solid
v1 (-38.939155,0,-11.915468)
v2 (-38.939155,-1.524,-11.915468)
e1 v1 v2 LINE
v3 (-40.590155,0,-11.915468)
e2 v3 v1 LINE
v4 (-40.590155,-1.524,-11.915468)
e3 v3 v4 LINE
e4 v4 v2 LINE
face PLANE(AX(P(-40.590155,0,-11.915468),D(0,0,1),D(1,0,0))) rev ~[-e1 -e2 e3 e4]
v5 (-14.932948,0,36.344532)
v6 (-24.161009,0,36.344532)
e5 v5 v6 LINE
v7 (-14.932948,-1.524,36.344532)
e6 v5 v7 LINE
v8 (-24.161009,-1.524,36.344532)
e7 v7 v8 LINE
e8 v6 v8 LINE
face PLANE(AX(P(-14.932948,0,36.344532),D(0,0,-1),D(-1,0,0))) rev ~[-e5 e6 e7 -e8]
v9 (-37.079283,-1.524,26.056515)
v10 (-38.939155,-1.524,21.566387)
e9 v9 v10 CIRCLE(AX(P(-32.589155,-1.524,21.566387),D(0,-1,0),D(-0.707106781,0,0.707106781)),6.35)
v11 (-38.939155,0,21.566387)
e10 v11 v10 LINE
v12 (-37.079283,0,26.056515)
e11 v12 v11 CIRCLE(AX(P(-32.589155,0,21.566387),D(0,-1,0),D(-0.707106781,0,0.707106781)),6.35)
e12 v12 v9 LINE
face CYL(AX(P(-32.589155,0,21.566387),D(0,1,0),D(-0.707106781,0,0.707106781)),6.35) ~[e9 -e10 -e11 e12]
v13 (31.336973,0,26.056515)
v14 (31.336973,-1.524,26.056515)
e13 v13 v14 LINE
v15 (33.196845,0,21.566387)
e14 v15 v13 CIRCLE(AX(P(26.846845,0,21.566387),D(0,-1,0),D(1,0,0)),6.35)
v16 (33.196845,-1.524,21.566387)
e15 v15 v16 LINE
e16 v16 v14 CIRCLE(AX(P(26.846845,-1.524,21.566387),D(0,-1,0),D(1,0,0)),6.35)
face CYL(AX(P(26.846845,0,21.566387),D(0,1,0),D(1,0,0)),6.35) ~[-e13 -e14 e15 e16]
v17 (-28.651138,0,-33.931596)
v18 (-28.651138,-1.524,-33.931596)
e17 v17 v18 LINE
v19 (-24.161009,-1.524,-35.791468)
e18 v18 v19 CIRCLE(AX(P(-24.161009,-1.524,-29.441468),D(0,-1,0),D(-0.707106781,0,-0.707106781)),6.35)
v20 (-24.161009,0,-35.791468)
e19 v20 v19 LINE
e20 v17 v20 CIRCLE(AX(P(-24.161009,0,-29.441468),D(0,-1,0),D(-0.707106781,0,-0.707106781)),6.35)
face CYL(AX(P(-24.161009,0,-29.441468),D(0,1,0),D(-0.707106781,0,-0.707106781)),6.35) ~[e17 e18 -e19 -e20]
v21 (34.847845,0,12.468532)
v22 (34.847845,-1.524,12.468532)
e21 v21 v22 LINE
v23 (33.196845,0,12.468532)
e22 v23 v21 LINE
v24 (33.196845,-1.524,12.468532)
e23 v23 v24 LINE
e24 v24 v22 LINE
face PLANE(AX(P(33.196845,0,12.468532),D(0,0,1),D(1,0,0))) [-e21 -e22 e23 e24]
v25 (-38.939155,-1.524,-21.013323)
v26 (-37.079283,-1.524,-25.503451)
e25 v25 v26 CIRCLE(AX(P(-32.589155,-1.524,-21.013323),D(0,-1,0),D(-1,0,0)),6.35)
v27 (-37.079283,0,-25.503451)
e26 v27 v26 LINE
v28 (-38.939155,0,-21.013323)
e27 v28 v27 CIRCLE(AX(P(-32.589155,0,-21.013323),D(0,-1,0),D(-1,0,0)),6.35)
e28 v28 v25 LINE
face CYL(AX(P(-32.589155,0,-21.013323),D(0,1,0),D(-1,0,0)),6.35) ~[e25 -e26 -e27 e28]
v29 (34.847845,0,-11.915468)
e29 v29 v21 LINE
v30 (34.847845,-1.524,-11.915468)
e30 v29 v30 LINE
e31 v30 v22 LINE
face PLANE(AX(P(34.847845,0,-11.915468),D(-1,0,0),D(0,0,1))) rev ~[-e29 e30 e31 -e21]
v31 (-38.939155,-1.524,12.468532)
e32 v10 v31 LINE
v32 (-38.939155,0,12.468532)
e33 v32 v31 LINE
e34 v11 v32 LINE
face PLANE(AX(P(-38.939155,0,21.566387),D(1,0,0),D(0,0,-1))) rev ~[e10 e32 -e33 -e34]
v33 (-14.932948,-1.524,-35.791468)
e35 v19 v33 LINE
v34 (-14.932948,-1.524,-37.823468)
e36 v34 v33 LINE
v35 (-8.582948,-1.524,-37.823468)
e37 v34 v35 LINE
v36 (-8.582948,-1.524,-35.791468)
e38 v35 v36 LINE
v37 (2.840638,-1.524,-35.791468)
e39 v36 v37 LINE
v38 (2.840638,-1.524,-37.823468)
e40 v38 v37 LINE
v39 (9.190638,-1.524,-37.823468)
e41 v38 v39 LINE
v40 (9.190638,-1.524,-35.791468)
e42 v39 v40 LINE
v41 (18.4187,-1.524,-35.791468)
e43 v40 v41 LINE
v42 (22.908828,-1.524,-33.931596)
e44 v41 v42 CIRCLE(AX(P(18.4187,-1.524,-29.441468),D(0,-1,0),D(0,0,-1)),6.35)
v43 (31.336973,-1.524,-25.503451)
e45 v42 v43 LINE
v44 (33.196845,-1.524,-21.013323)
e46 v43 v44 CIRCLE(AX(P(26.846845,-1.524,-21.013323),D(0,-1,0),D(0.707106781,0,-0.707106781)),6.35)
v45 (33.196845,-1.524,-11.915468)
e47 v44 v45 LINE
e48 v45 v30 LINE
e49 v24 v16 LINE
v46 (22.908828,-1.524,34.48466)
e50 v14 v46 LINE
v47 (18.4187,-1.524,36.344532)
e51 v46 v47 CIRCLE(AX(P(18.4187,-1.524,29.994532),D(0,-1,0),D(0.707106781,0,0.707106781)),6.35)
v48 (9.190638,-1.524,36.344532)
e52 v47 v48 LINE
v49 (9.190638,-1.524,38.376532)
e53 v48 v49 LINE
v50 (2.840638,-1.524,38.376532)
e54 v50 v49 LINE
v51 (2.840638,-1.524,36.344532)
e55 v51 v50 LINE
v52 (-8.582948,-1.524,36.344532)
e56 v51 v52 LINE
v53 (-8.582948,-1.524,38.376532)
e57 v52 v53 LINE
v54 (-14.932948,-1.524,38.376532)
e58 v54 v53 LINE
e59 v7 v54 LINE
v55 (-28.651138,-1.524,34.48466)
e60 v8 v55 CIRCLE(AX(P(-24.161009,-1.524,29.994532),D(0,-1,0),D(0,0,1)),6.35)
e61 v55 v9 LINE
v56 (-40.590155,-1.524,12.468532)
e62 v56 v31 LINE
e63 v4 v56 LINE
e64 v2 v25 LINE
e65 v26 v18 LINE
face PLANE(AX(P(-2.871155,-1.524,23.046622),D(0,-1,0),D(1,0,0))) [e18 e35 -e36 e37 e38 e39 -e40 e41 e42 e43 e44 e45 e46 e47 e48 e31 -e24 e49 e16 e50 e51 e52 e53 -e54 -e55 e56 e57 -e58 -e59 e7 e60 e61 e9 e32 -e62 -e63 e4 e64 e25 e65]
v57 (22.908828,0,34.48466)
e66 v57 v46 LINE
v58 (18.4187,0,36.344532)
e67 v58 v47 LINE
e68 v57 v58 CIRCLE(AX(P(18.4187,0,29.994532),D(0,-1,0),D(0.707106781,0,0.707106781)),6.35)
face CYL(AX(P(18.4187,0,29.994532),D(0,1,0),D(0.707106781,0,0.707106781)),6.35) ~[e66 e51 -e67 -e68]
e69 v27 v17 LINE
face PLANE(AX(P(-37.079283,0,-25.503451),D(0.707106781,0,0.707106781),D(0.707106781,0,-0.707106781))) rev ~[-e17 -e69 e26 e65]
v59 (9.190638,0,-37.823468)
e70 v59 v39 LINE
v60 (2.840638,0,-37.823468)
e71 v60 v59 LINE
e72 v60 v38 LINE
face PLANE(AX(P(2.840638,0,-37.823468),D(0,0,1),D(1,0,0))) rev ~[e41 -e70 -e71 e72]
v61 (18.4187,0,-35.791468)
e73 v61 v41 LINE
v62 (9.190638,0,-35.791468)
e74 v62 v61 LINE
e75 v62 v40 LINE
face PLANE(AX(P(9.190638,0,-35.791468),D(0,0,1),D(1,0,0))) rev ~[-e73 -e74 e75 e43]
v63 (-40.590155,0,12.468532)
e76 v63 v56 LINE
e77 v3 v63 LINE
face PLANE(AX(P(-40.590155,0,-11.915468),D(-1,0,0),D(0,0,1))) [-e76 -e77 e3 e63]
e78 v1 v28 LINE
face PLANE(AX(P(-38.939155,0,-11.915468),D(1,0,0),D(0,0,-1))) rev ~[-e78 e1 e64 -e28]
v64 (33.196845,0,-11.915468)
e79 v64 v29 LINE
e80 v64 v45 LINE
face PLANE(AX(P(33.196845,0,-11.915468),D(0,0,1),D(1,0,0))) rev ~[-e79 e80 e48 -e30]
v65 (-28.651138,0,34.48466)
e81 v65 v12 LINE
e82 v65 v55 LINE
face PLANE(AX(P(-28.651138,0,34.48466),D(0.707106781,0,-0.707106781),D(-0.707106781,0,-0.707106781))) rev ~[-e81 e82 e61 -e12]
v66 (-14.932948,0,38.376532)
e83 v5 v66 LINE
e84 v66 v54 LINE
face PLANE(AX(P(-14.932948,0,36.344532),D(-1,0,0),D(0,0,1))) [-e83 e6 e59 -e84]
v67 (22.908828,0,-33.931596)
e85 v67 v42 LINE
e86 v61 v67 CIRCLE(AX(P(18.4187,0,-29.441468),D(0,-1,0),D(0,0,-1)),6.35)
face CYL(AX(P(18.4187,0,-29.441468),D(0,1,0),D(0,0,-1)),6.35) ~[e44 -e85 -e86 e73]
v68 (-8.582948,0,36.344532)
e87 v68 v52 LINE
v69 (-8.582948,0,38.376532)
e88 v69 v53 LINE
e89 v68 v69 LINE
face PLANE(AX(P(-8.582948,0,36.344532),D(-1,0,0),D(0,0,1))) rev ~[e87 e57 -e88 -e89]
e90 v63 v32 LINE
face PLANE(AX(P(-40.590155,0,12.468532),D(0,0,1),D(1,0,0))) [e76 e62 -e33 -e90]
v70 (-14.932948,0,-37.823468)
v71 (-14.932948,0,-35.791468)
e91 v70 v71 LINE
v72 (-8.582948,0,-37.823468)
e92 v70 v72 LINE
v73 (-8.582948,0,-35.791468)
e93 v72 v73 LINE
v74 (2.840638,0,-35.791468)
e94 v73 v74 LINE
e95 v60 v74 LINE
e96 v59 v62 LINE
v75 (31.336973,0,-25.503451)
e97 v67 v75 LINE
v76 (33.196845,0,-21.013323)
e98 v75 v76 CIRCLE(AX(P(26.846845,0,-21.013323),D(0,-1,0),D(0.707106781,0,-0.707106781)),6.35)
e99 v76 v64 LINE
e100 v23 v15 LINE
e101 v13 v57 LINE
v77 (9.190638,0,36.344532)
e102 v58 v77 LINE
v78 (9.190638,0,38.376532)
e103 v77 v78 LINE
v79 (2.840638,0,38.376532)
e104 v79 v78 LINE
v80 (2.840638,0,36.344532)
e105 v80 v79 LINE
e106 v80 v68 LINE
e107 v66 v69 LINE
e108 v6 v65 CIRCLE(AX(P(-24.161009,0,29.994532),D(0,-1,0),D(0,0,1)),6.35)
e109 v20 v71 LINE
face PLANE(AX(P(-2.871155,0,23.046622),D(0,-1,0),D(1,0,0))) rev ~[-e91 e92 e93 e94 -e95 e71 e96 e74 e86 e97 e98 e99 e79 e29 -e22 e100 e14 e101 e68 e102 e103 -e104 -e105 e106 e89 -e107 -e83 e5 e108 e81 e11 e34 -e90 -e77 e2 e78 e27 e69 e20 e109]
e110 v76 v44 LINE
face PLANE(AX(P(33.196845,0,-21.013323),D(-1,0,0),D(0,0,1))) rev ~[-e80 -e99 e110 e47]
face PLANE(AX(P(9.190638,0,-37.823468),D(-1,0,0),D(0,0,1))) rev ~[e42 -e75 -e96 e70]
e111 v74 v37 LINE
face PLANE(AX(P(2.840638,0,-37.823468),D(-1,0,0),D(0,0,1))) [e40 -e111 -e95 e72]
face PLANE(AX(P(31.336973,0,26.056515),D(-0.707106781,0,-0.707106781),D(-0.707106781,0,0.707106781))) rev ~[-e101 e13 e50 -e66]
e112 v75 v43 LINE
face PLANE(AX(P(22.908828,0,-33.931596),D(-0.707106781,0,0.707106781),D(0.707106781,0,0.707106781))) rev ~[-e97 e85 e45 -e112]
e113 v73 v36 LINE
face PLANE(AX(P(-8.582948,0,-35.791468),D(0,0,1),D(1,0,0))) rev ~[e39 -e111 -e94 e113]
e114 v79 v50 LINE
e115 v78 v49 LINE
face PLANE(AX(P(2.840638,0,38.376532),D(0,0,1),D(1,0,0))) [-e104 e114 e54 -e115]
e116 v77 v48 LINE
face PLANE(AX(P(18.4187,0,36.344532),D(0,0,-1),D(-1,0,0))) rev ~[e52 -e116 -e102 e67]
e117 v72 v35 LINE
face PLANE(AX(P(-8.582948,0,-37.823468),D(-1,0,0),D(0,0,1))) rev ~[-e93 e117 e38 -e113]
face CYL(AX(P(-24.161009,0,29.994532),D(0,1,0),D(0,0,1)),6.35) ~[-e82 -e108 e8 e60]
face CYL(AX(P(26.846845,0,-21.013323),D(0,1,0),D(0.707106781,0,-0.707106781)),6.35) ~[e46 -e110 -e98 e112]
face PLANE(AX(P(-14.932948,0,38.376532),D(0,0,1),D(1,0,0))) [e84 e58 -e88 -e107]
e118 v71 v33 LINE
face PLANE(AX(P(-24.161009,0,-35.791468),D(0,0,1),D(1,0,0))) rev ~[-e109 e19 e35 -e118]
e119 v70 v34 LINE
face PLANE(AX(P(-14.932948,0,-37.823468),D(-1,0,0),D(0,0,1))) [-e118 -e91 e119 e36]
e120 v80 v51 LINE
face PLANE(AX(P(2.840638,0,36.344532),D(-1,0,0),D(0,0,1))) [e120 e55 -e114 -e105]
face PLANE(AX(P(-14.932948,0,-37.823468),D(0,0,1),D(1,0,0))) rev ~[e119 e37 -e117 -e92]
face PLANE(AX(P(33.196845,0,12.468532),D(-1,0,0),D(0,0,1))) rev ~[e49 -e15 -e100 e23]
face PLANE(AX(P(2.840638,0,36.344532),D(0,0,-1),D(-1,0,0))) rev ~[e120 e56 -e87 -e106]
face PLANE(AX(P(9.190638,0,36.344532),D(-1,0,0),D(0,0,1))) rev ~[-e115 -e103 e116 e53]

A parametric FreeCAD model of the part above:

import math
import FreeCAD as App
import Part
import Sketcher

V = App.Vector
Q = App.Units.Quantity

doc = App.newDocument("Part")
body = doc.addObject("PartDesign::Body", "Body")

# Sketch on XZ plane
sketch1 = body.newObject("Sketcher::SketchObject", "Sketch")
sketch1.AttachmentSupport = (doc.getObject("XZ_Plane"), [""])
sketch1.MapMode = "FlatFace"
sketch1.addGeometry([
    Part.LineSegment(V(18.4, 36.3, 0), V(9.2, 36.3, 0)),  # 0
    Part.LineSegment(V(9.2, 36.3, 0), V(9.2, 38.4, 0)),  # 1
    Part.LineSegment(V(9.2, 38.4, 0), V(2.8, 38.4, 0)),  # 2
    Part.LineSegment(V(2.8, 38.4, 0), V(2.8, 36.3, 0)),  # 3
    Part.LineSegment(V(2.8, 36.3, 0), V(-8.6, 36.3, 0)),  # 4
    Part.LineSegment(V(-8.6, 36.3, 0), V(-8.6, 38.4, 0)),  # 5
    Part.LineSegment(V(-8.6, 38.4, 0), V(-14.9, 38.4, 0)),  # 6
    Part.LineSegment(V(-14.9, 38.4, 0), V(-14.9, 36.3, 0)),  # 7
    Part.LineSegment(V(-14.9, 36.3, 0), V(-24.2, 36.3, 0)),  # 8
    Part.ArcOfCircle(Part.Circle(V(-24.2, 30, 0), V(0, 0, 1), 6.3), math.radians(90), math.radians(135)),  # 9
    Part.LineSegment(V(-28.7, 34.5, 0), V(-37.1, 26.1, 0)),  # 10
    Part.ArcOfCircle(Part.Circle(V(-32.6, 21.6, 0), V(0, 0, 1), 6.3), math.radians(135), math.radians(180)),  # 11
    Part.LineSegment(V(-38.9, 21.6, 0), V(-38.9, 12.5, 0)),  # 12
    Part.LineSegment(V(-38.9, 12.5, 0), V(-40.6, 12.5, 0)),  # 13
    Part.LineSegment(V(-40.6, 12.5, 0), V(-40.6, -11.9, 0)),  # 14
    Part.LineSegment(V(-40.6, -11.9, 0), V(-38.9, -11.9, 0)),  # 15
    Part.LineSegment(V(-38.9, -11.9, 0), V(-38.9, -21, 0)),  # 16
    Part.ArcOfCircle(Part.Circle(V(-32.6, -21, 0), V(0, 0, 1), 6.3), math.radians(180), math.radians(225)),  # 17
    Part.LineSegment(V(-37.1, -25.5, 0), V(-28.7, -33.9, 0)),  # 18
    Part.ArcOfCircle(Part.Circle(V(-24.2, -29.4, 0), V(0, 0, 1), 6.3), math.radians(-135), math.radians(-90)),  # 19
    Part.LineSegment(V(-24.2, -35.8, 0), V(-14.9, -35.8, 0)),  # 20
    Part.LineSegment(V(-14.9, -35.8, 0), V(-14.9, -37.8, 0)),  # 21
    Part.LineSegment(V(-14.9, -37.8, 0), V(-8.6, -37.8, 0)),  # 22
    Part.LineSegment(V(-8.6, -37.8, 0), V(-8.6, -35.8, 0)),  # 23
    Part.LineSegment(V(-8.6, -35.8, 0), V(2.8, -35.8, 0)),  # 24
    Part.LineSegment(V(2.8, -35.8, 0), V(2.8, -37.8, 0)),  # 25
    Part.LineSegment(V(2.8, -37.8, 0), V(9.2, -37.8, 0)),  # 26
    Part.LineSegment(V(9.2, -37.8, 0), V(9.2, -35.8, 0)),  # 27
    Part.LineSegment(V(9.2, -35.8, 0), V(18.4, -35.8, 0)),  # 28
    Part.ArcOfCircle(Part.Circle(V(18.4, -29.4, 0), V(0, 0, 1), 6.3), math.radians(-90), math.radians(-45)),  # 29
    Part.LineSegment(V(22.9, -33.9, 0), V(31.3, -25.5, 0)),  # 30
    Part.ArcOfCircle(Part.Circle(V(26.8, -21, 0), V(0, 0, 1), 6.3), math.radians(-45), math.radians(0)),  # 31
    Part.LineSegment(V(33.2, -21, 0), V(33.2, -11.9, 0)),  # 32
    Part.LineSegment(V(33.2, -11.9, 0), V(34.8, -11.9, 0)),  # 33
    Part.LineSegment(V(34.8, -11.9, 0), V(34.8, 12.5, 0)),  # 34
    Part.LineSegment(V(34.8, 12.5, 0), V(33.2, 12.5, 0)),  # 35
    Part.LineSegment(V(33.2, 12.5, 0), V(33.2, 21.6, 0)),  # 36
    Part.ArcOfCircle(Part.Circle(V(26.8, 21.6, 0), V(0, 0, 1), 6.3), math.radians(0), math.radians(45)),  # 37
    Part.LineSegment(V(31.3, 26.1, 0), V(22.9, 34.5, 0)),  # 38
    Part.ArcOfCircle(Part.Circle(V(18.4, 30, 0), V(0, 0, 1), 6.3), math.radians(45), math.radians(90)),  # 39
], False)
sketch1.addConstraint([
    Sketcher.Constraint("Coincident", 0, 2, 1, 1),
    Sketcher.Constraint("Coincident", 1, 2, 2, 1),
    Sketcher.Constraint("Coincident", 2, 2, 3, 1),
    Sketcher.Constraint("Coincident", 3, 2, 4, 1),
    Sketcher.Constraint("Coincident", 4, 2, 5, 1),
    Sketcher.Constraint("Coincident", 5, 2, 6, 1),
    Sketcher.Constraint("Coincident", 6, 2, 7, 1),
    Sketcher.Constraint("Coincident", 7, 2, 8, 1),
    Sketcher.Constraint("Tangent", 8, 2, 9, 1),
    Sketcher.Constraint("Tangent", 9, 2, 10, 1),
    Sketcher.Constraint("Tangent", 10, 2, 11, 1),
    Sketcher.Constraint("Tangent", 11, 2, 12, 1),
    Sketcher.Constraint("Coincident", 12, 2, 13, 1),
    Sketcher.Constraint("Coincident", 13, 2, 14, 1),
    Sketcher.Constraint("Coincident", 14, 2, 15, 1),
    Sketcher.Constraint("Coincident", 15, 2, 16, 1),
    Sketcher.Constraint("Tangent", 16, 2, 17, 1),
    Sketcher.Constraint("Tangent", 17, 2, 18, 1),
    Sketcher.Constraint("Tangent", 18, 2, 19, 1),
    Sketcher.Constraint("Tangent", 19, 2, 20, 1),
    Sketcher.Constraint("Coincident", 20, 2, 21, 1),
    Sketcher.Constraint("Coincident", 21, 2, 22, 1),
    Sketcher.Constraint("Coincident", 22, 2, 23, 1),
    Sketcher.Constraint("Coincident", 23, 2, 24, 1),
    Sketcher.Constraint("Coincident", 24, 2, 25, 1),
    Sketcher.Constraint("Coincident", 25, 2, 26, 1),
    Sketcher.Constraint("Coincident", 26, 2, 27, 1),
    Sketcher.Constraint("Coincident", 27, 2, 28, 1),
    Sketcher.Constraint("Tangent", 28, 2, 29, 1),
    Sketcher.Constraint("Tangent", 29, 2, 30, 1),
    Sketcher.Constraint("Tangent", 30, 2, 31, 1),
    Sketcher.Constraint("Tangent", 31, 2, 32, 1),
    Sketcher.Constraint("Coincident", 32, 2, 33, 1),
    Sketcher.Constraint("Coincident", 33, 2, 34, 1),
    Sketcher.Constraint("Coincident", 34, 2, 35, 1),
    Sketcher.Constraint("Coincident", 35, 2, 36, 1),
    Sketcher.Constraint("Tangent", 36, 2, 37, 1),
    Sketcher.Constraint("Tangent", 37, 2, 38, 1),
    Sketcher.Constraint("Tangent", 38, 2, 39, 1),
    Sketcher.Constraint("Tangent", 39, 2, 0, 1),
    Sketcher.Constraint("Horizontal", 0),
    Sketcher.Constraint("Vertical", 1),
    Sketcher.Constraint("Horizontal", 2),
    Sketcher.Constraint("Vertical", 3),
    Sketcher.Constraint("Horizontal", 4),
    Sketcher.Constraint("Vertical", 5),
    Sketcher.Constraint("Horizontal", 6),
    Sketcher.Constraint("Vertical", 7),
    Sketcher.Constraint("Horizontal", 8),
    Sketcher.Constraint("Vertical", 12),
    Sketcher.Constraint("Horizontal", 13),
    Sketcher.Constraint("Vertical", 14),
    Sketcher.Constraint("Horizontal", 15),
    Sketcher.Constraint("Vertical", 16),
    Sketcher.Constraint("Horizontal", 20),
    Sketcher.Constraint("Vertical", 21),
    Sketcher.Constraint("Horizontal", 22),
    Sketcher.Constraint("Vertical", 23),
    Sketcher.Constraint("Horizontal", 24),
    Sketcher.Constraint("Vertical", 25),
    Sketcher.Constraint("Horizontal", 26),
    Sketcher.Constraint("Vertical", 27),
    Sketcher.Constraint("Horizontal", 28),
    Sketcher.Constraint("Vertical", 32),
    Sketcher.Constraint("Horizontal", 33),
    Sketcher.Constraint("Vertical", 34),
    Sketcher.Constraint("Horizontal", 35),
    Sketcher.Constraint("Vertical", 36),
    Sketcher.Constraint("Equal", 9, 11),
    Sketcher.Constraint("Equal", 11, 17),
    Sketcher.Constraint("Equal", 17, 19),
    Sketcher.Constraint("Equal", 19, 29),
    Sketcher.Constraint("Equal", 29, 31),
    Sketcher.Constraint("Equal", 31, 37),
    Sketcher.Constraint("Equal", 37, 39),
    Sketcher.Constraint("Perpendicular", 10, 18),
    Sketcher.Constraint("Perpendicular", 18, 30),
    Sketcher.Constraint("Perpendicular", 30, 38),
    Sketcher.Constraint("Horizontal", 19, 3, 29, 3),
    Sketcher.Constraint("Horizontal", 17, 3, 31, 3),
    Sketcher.Constraint("Horizontal", 11, 3, 37, 3),
    Sketcher.Constraint("Horizontal", 9, 3, 39, 3),
    Sketcher.Constraint("Horizontal", 0, 2, 3, 2),
    Sketcher.Constraint("Horizontal", 2, 2, 5, 2),
    Sketcher.Constraint("Horizontal", 20, 2, 23, 2),
    Sketcher.Constraint("Horizontal", 22, 2, 25, 2),
    Sketcher.Constraint("Horizontal", 18, 2, 29, 2),
    Sketcher.Constraint("Horizontal", 15, 2, 32, 2),
    Sketcher.Constraint("Horizontal", 13, 2, 34, 2),
    Sketcher.Constraint("Vertical", 11, 3, 17, 3),
    Sketcher.Constraint("Vertical", 9, 3, 19, 3),
    Sketcher.Constraint("Vertical", 31, 3, 37, 3),
    Sketcher.Constraint("Vertical", 7, 2, 20, 2),
    Sketcher.Constraint("Vertical", 5, 2, 22, 2),
    Sketcher.Constraint("Vertical", 3, 2, 24, 2),
    Sketcher.Constraint("Vertical", 1, 2, 26, 2),
    Sketcher.Constraint("Equal", 2, 6),
    Sketcher.Constraint("Equal", 0, 8),
    Sketcher.Constraint("Equal", 15, 33),
    Sketcher.Constraint("Equal", 12, 16),
    Sketcher.Constraint("Equal", 7, 21),
    Sketcher.Constraint("Radius", 9, Q("0.25 in")),
    Sketcher.Constraint("DistanceX", 2, 2, 2, 1, Q("0.25 in")),
    Sketcher.Constraint("DistanceY", 1, 1, 1, 2, Q("0.08 in")),
    Sketcher.Constraint("DistanceY", 14, 2, 14, 1, Q("0.96 in")),
    Sketcher.Constraint("DistanceX", 13, 2, 13, 1, Q("0.065 in")),
    Sketcher.Constraint("DistanceY", 19, 3, 9, 3, Q("2.34 in")),
    Sketcher.Constraint("DistanceX", 17, 3, 31, 3, Q("2.34 in")),
    Sketcher.Constraint("DistanceX", 0, 2, 0, 1, Q("9.228062 mm")),
    Sketcher.Constraint("DistanceX", -1, 1, 29, 3, Q("18.4187 mm")),
    Sketcher.Constraint("DistanceX", 4, 2, 4, 1, Q("11.423586 mm")),
    Sketcher.Constraint("DistanceY", -1, 1, 9, 2, Q("34.48466 mm")),
])
pad1 = body.newObject("PartDesign::Pad", "Pad")
pad1.Profile = sketch1
pad1.Length = Q("0.06 in")

doc.recompute()
